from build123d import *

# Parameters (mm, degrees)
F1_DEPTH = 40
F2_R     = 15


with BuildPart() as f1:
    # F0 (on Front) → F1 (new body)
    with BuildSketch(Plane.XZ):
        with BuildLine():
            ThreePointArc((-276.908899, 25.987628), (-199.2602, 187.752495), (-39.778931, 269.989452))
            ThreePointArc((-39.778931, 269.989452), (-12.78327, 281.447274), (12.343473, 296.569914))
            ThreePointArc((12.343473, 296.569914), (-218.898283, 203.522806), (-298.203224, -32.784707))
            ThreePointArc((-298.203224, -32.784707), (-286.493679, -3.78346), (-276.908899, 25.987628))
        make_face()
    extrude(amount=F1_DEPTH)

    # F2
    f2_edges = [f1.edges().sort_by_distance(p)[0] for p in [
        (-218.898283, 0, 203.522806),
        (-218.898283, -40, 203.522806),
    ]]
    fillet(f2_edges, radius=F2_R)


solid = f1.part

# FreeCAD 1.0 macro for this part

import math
import FreeCAD as App
import Part
import Sketcher
from FreeCAD import Vector
Q = App.Units.Quantity


def edges_at(feature, points):
    """Names of the edges that pass closest to the given points."""
    edges = feature.Shape.Edges
    near = lambda p: min(range(len(edges)), key=lambda i: edges[i].distToShape(Part.Vertex(*p))[0])
    return sorted({f"Edge{near(p) + 1}" for p in points})

doc = App.newDocument("Part")
body = doc.addObject("PartDesign::Body", "Body")

sketch1 = body.newObject("Sketcher::SketchObject", "Sketch")
sketch1.AttachmentSupport = (doc.getObject("XZ_Plane"), [""])
sketch1.MapMode = "FlatFace"
sketch1.addGeometry(Part.ArcOfCircle(Part.Circle(Vector(3, -9, 0), Vector(0, 0, 1), 282), math.radians(99), math.radians(173)), False)
sketch1.addGeometry(Part.ArcOfCircle(Part.Circle(Vector(-108, 468, 0), Vector(0, 0, 1), 209), math.radians(-71.02), math.radians(-54.94)), False)
sketch1.addGeometry(Part.ArcOfCircle(Part.Circle(Vector(-2, -1, 0), Vector(0, 0, 1), 298), math.radians(87), math.radians(186)), False)
sketch1.addGeometry(Part.ArcOfCircle(Part.Circle(Vector(-693, 144, 0), Vector(0, 0, 1), 433), math.radians(-24.06), math.radians(-15.78)), False)
sketch1.addConstraint(Sketcher.Constraint("Coincident", 0, 1, 1, 1))
sketch1.addConstraint(Sketcher.Constraint("Coincident", 1, 2, 2, 1))
sketch1.addConstraint(Sketcher.Constraint("Coincident", 2, 2, 3, 1))
sketch1.addConstraint(Sketcher.Constraint("Coincident", 3, 2, 0, 2))
sketch1.addConstraint(Sketcher.Constraint("Radius", 3, Q("432.839041 mm")))
sketch1.addConstraint(Sketcher.Constraint("Radius", 0, Q("282.157457 mm")))
sketch1.addConstraint(Sketcher.Constraint("Radius", 1, Q("209.061546 mm")))
sketch1.addConstraint(Sketcher.Constraint("Radius", 2, Q("297.522746 mm")))
sketch1.addConstraint(Sketcher.Constraint("DistanceX", 3, 2, -1, 1, Q("276.908899 mm")))
sketch1.addConstraint(Sketcher.Constraint("DistanceY", 0, 1, 1, 3, Q("197.7001 mm")))
sketch1.addConstraint(Sketcher.Constraint("DistanceX", -1, 1, 0, 3, Q("3.08423 mm")))
sketch1.addConstraint(Sketcher.Constraint("DistanceY", 2, 3, -1, 1, Q("0.58592 mm")))
sketch1.addConstraint(Sketcher.Constraint("DistanceX", 0, 1, -1, 1, Q("39.778931 mm")))
sketch1.addConstraint(Sketcher.Constraint("DistanceX", 1, 3, 2, 3, Q("105.33188 mm")))
sketch1.addConstraint(Sketcher.Constraint("DistanceY", 3, 3, 1, 3, Q("324.026919 mm")))
sketch1.addConstraint(Sketcher.Constraint("DistanceY", 0, 1, 1, 2, Q("26.580462 mm")))
pad1 = body.newObject("PartDesign::Pad", "Pad")
pad1.Profile = sketch1
pad1.Length = 40
doc.recompute()

fillet = body.newObject("PartDesign::Fillet", "Fillet")
fillet.Base = (pad1, edges_at(pad1, [(-218.898, 0, 203.523), (-218.898, -40, 203.523)]))
fillet.Radius = 15

doc.recompute()
